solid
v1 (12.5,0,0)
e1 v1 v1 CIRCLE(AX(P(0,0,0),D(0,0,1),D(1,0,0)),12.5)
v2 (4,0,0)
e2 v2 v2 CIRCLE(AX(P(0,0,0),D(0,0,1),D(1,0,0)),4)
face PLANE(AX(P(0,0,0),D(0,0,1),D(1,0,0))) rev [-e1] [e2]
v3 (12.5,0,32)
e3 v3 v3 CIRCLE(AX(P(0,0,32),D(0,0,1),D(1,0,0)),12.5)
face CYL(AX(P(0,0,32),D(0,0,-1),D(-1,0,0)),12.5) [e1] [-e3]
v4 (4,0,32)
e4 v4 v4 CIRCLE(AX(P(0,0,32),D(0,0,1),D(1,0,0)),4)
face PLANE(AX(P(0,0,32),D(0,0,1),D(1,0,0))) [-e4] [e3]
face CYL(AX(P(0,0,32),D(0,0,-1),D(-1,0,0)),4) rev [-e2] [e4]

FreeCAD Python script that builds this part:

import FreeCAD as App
import Part
import Sketcher
from FreeCAD import Vector
Q = App.Units.Quantity

doc = App.newDocument("Part")
body = doc.addObject("PartDesign::Body", "Body")

# Sketch on XY plane
sketch1 = body.newObject("Sketcher::SketchObject", "Sketch")
sketch1.AttachmentSupport = (doc.getObject("XY_Plane"), [""])
sketch1.MapMode = "FlatFace"
sketch1.addGeometry(Part.Circle(Vector(0, 0, 0), Vector(0, 0, 1), 12.5), False)
sketch1.addGeometry(Part.Circle(Vector(0, 0, 0), Vector(0, 0, 1), 4), False)
sketch1.addConstraint(Sketcher.Constraint("Coincident", 0, 3, -1, 1))
sketch1.addConstraint(Sketcher.Constraint("Coincident", 1, 3, -1, 1))
sketch1.addConstraint(Sketcher.Constraint("Diameter", 0, Q("25 mm")))
sketch1.addConstraint(Sketcher.Constraint("Diameter", 1, Q("8 mm")))
pad1 = body.newObject("PartDesign::Pad", "Pad")
pad1.Profile = sketch1
pad1.Length = 32

doc.recompute()
